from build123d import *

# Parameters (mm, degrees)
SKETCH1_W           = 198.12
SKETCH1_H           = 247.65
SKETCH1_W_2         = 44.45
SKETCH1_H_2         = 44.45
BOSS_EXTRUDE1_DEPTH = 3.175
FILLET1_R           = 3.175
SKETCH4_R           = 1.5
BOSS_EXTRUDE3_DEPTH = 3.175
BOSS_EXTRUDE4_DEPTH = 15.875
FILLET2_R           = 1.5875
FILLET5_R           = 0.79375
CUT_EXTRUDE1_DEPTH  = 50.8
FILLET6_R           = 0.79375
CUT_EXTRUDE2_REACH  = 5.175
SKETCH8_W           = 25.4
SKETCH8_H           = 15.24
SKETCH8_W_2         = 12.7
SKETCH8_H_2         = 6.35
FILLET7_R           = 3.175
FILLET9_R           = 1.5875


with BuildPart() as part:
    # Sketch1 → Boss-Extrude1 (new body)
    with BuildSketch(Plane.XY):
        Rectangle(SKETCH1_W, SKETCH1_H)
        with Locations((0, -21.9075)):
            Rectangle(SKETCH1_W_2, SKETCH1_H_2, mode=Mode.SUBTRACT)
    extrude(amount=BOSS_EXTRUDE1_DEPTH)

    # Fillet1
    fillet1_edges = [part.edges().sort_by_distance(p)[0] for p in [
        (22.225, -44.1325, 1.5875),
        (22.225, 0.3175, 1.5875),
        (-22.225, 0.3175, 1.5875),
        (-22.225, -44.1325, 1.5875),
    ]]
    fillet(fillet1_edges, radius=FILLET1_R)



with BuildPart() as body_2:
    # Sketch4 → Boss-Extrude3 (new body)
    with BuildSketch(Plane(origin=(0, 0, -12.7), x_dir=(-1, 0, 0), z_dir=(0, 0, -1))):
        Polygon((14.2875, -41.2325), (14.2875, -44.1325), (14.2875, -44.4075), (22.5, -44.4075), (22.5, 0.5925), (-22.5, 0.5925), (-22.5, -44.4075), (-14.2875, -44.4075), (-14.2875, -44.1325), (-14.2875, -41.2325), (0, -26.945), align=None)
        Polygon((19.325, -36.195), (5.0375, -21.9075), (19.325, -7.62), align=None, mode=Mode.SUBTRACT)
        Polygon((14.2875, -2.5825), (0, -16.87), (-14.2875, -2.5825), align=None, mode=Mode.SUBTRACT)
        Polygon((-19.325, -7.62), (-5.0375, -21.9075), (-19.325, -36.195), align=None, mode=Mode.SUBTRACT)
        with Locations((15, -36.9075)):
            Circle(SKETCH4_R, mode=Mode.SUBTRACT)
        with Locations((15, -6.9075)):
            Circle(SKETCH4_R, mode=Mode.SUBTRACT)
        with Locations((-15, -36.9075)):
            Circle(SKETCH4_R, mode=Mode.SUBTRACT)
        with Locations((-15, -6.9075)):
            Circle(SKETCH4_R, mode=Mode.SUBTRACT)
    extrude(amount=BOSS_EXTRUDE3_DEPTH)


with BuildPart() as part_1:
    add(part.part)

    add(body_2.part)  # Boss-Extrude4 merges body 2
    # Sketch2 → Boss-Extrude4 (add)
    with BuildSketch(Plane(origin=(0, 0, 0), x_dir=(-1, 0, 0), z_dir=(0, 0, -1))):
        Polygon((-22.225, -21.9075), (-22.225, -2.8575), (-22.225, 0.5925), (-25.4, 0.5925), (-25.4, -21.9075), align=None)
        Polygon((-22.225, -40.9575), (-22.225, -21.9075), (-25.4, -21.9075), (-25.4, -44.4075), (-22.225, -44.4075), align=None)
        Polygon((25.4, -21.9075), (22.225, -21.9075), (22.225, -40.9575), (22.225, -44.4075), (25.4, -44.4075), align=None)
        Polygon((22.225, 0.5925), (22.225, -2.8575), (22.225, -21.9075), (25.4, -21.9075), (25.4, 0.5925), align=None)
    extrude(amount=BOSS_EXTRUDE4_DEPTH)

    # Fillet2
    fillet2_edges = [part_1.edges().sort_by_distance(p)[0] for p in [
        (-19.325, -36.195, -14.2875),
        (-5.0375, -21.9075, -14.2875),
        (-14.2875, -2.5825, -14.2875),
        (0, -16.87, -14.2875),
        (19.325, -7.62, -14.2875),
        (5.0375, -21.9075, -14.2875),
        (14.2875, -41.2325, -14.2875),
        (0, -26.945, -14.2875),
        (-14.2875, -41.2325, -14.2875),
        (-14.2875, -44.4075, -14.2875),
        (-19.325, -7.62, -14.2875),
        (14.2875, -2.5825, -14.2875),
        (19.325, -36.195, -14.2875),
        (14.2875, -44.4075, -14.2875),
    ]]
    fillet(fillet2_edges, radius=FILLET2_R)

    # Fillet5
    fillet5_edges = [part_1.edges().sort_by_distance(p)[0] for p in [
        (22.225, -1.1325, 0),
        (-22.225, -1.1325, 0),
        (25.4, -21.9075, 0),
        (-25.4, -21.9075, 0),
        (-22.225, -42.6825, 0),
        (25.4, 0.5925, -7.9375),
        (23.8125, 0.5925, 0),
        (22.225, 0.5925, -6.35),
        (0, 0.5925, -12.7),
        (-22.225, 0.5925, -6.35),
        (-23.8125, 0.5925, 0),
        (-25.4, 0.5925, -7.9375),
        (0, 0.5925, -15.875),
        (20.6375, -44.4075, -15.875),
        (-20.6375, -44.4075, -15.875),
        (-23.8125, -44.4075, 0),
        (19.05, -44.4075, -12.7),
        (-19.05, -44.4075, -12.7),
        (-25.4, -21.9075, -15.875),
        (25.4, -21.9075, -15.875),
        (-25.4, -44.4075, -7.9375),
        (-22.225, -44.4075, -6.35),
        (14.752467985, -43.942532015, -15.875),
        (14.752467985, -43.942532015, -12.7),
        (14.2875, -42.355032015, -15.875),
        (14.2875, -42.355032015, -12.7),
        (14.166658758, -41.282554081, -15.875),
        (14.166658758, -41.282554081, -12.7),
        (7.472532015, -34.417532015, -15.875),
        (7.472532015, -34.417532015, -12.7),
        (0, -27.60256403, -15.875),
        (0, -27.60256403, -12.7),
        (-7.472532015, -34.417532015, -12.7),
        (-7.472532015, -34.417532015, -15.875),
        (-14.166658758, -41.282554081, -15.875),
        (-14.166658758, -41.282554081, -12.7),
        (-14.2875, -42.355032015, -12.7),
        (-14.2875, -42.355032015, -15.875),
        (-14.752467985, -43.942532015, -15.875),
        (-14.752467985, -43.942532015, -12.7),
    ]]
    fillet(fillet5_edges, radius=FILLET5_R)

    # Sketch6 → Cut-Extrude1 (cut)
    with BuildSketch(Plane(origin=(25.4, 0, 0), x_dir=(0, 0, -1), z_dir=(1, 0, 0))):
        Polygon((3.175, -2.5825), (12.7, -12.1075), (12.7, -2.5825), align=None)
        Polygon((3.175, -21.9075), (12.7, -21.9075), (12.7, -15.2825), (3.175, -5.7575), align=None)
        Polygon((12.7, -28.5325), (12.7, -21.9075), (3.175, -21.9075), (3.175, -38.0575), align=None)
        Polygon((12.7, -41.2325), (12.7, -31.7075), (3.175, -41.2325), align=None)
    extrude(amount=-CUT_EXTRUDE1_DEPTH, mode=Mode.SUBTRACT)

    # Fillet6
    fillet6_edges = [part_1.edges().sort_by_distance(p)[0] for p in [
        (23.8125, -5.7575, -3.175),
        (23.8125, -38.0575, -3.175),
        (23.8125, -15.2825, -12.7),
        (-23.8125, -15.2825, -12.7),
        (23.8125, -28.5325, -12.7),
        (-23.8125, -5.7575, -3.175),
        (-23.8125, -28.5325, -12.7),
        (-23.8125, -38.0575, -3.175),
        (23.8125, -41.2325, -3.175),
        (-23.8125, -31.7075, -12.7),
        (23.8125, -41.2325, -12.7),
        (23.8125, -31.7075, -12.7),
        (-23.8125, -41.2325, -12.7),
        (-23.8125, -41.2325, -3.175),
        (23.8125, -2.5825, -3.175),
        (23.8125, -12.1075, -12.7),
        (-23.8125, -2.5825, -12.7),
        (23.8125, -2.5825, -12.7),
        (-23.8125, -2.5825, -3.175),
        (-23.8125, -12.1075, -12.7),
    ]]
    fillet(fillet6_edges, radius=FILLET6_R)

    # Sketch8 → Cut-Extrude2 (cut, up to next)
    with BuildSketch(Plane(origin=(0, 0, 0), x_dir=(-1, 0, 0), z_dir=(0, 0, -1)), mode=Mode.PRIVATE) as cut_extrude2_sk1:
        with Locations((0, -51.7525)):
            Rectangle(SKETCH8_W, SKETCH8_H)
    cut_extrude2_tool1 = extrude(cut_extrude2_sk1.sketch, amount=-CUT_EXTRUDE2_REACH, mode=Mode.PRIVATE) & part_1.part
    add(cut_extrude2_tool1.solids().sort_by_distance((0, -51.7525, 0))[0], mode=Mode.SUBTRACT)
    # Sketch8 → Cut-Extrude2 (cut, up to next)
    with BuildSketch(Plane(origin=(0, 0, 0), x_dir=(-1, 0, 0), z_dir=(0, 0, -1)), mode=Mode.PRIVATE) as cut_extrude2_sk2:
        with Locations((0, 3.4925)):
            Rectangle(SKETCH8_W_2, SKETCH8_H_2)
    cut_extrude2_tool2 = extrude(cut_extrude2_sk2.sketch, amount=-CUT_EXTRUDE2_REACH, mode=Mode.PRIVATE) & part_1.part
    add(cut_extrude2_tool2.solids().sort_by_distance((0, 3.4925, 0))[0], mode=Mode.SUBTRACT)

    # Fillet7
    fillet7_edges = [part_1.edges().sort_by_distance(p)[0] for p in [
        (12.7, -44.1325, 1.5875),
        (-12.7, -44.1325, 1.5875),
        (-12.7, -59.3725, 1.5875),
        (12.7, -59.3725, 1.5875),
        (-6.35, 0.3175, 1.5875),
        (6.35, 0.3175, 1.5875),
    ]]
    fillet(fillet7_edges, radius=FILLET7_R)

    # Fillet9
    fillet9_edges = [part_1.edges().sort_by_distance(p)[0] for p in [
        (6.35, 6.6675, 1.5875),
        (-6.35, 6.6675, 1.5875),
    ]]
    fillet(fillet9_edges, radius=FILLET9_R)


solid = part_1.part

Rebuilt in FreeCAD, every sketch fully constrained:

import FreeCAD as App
import Part
import Sketcher

V = App.Vector
Q = App.Units.Quantity


def edges_at(feature, points):
    """Names of the edges that pass closest to the given points."""
    edges = feature.Shape.Edges
    near = lambda p: min(range(len(edges)), key=lambda i: edges[i].distToShape(Part.Vertex(*p))[0])
    return sorted({f"Edge{near(p) + 1}" for p in points})

doc = App.newDocument("Part")
params = doc.addObject("Spreadsheet::Sheet", "Params")
for row, (alias, value) in enumerate([
    ("sketch1_width", "7.8 in"),
    ("sketch1_width2", "1.75 in"),
    ("sketch1_height", "9.75 in"),
    ("pad1_length", "0.125 in"),
    ("fillet_radius", "0.125 in"),
    ("sketch2_width", "1.125 in"),
    ("sketch2_height", "0.125 in"),
    ("pad2_length", "0.125 in"),
    ("sketch3_width", "0.125 in"),
    ("pad3_length", "0.625 in"),
    ("fillet2_radius", "0.0625 in"),
    ("fillet3_radius", "0.03125 in"),
    ("sketch4_width", "0.375 in"),
    ("pocket1_length", "2 in"),
    ("fillet4_radius", "0.03125 in"),
    ("sketch5_width", "1 in"),
    ("sketch5_height", "0.6 in"),
    ("sketch6_width", "0.5 in"),
    ("sketch6_height", "0.25 in"),
    ("fillet5_radius", "0.125 in"),
    ("fillet6_radius", "0.0625 in"),
], start=1):
    params.set(f"A{row}", alias)
    params.set(f"B{row}", "=" + value)
    params.setAlias(f"B{row}", alias)

body = doc.addObject("PartDesign::Body", "Body")

# Sketch on XY plane
sketch1 = body.newObject("Sketcher::SketchObject", "Sketch")
sketch1.AttachmentSupport = (doc.getObject("XY_Plane"), [""])
sketch1.MapMode = "FlatFace"
sketch1.addGeometry([
    Part.LineSegment(V(-99.06, 123.825, 0), V(-99.06, -123.825, 0)),  # 0
    Part.LineSegment(V(-99.06, -123.825, 0), V(99.06, -123.825, 0)),  # 1
    Part.LineSegment(V(99.06, -123.825, 0), V(99.06, 123.825, 0)),  # 2
    Part.LineSegment(V(99.06, 123.825, 0), V(-99.06, 123.825, 0)),  # 3
    Part.LineSegment(V(22.225, -44.1325, 0), V(-22.225, -44.1325, 0)),  # 4
    Part.LineSegment(V(-22.225, -44.1325, 0), V(-22.225, 0.3175, 0)),  # 5
    Part.LineSegment(V(-22.225, 0.3175, 0), V(22.225, 0.3175, 0)),  # 6
    Part.LineSegment(V(22.225, 0.3175, 0), V(22.225, -44.1325, 0)),  # 7
], False)
sketch1.addConstraint([
    Sketcher.Constraint("Coincident", 0, 2, 1, 1),
    Sketcher.Constraint("Coincident", 1, 2, 2, 1),
    Sketcher.Constraint("Coincident", 2, 2, 3, 1),
    Sketcher.Constraint("Coincident", 3, 2, 0, 1),
    Sketcher.Constraint("Coincident", 4, 2, 5, 1),
    Sketcher.Constraint("Coincident", 5, 2, 6, 1),
    Sketcher.Constraint("Coincident", 6, 2, 7, 1),
    Sketcher.Constraint("Coincident", 7, 2, 4, 1),
    Sketcher.Constraint("Vertical", 0),
    Sketcher.Constraint("Horizontal", 1),
    Sketcher.Constraint("Vertical", 2),
    Sketcher.Constraint("Horizontal", 3),
    Sketcher.Constraint("Horizontal", 4),
    Sketcher.Constraint("Vertical", 5),
    Sketcher.Constraint("Horizontal", 6),
    Sketcher.Constraint("Vertical", 7),
    Sketcher.Constraint("Symmetric", 0, 2, 2, 2, -1, 1),
    Sketcher.Constraint("Equal", 6, 5),
    Sketcher.Constraint("DistanceX", 1, 1, 1, 2, Q("7.8 in")),
    Sketcher.Constraint("DistanceX", 4, 2, 4, 1, Q("1.75 in")),
    Sketcher.Constraint("DistanceY", 0, 2, 0, 1, Q("9.75 in")),
    Sketcher.Constraint("DistanceX", 4, 2, -1, 1, Q("0.875 in")),
    Sketcher.Constraint("DistanceY", 4, 2, -1, 1, Q("1.7375 in")),
])
sketch1.setExpression("Constraints[18]", "Params.sketch1_width")
sketch1.setExpression("Constraints[19]", "Params.sketch1_width2")
sketch1.setExpression("Constraints[20]", "Params.sketch1_height")
pad1 = body.newObject("PartDesign::Pad", "Pad")
pad1.Profile = sketch1
pad1.setExpression("Length", "Params.pad1_length")
doc.recompute()

fillet = body.newObject("PartDesign::Fillet", "Fillet")
fillet.Base = (pad1, edges_at(pad1, [
    (22.225, -44.133, 1.587),
    (22.225, 0.318, 1.587),
    (-22.225, 0.318, 1.587),
    (-22.225, -44.133, 1.587),
]))
fillet.setExpression("Radius", "Params.fillet_radius")
body2 = doc.addObject("PartDesign::Body", "Body001")

# Sketch on XY plane
sketch2 = body2.newObject("Sketcher::SketchObject", "Sketch001")
sketch2.AttachmentSupport = (doc.getObject("XY_Plane001"), [""])
sketch2.MapMode = "FlatFace"
sketch2.AttachmentOffset = App.Placement(V(0, 0, -0.5 * 25.4), App.Rotation())
sketch2.addGeometry([
    Part.LineSegment(V(-14.2875, -41.2325, 0), V(-14.2875, -44.4075, 0)),  # 0
    Part.LineSegment(V(-14.2875, -44.4075, 0), V(-22.5, -44.4075, 0)),  # 1
    Part.LineSegment(V(-22.5, -44.4075, 0), V(-22.5, 0.5925, 0)),  # 2
    Part.LineSegment(V(-22.5, 0.5925, 0), V(22.5, 0.5925, 0)),  # 3
    Part.LineSegment(V(22.5, 0.5925, 0), V(22.5, -44.4075, 0)),  # 4
    Part.LineSegment(V(22.5, -44.4075, 0), V(14.2875, -44.4075, 0)),  # 5
    Part.LineSegment(V(14.2875, -44.4075, 0), V(14.2875, -41.2325, 0)),  # 6
    Part.LineSegment(V(14.2875, -41.2325, 0), V(0, -26.945, 0)),  # 7
    Part.LineSegment(V(0, -26.945, 0), V(-14.2875, -41.2325, 0)),  # 8
    Part.Circle(V(15, -36.9075, 0), V(0, 0, 1), 1.5),  # 9
    Part.LineSegment(V(19.325, -36.195, 0), V(19.325, -7.62, 0)),  # 10
    Part.LineSegment(V(19.325, -7.62, 0), V(5.0375, -21.9075, 0)),  # 11
    Part.LineSegment(V(5.0375, -21.9075, 0), V(19.325, -36.195, 0)),  # 12
    Part.Circle(V(-15, -36.9075, 0), V(0, 0, 1), 1.5),  # 13
    Part.LineSegment(V(-19.325, -7.62, 0), V(-19.325, -36.195, 0)),  # 14
    Part.LineSegment(V(-19.325, -36.195, 0), V(-5.0375, -21.9075, 0)),  # 15
    Part.LineSegment(V(-5.0375, -21.9075, 0), V(-19.325, -7.62, 0)),  # 16
    Part.Circle(V(15, -6.9075, 0), V(0, 0, 1), 1.5),  # 17
    Part.LineSegment(V(14.2875, -2.5825, 0), V(-14.2875, -2.5825, 0)),  # 18
    Part.LineSegment(V(-14.2875, -2.5825, 0), V(0, -16.87, 0)),  # 19
    Part.LineSegment(V(0, -16.87, 0), V(14.2875, -2.5825, 0)),  # 20
    Part.Circle(V(-15, -6.9075, 0), V(0, 0, 1), 1.5),  # 21
], False)
sketch2.addConstraint([
    Sketcher.Constraint("Coincident", 0, 2, 1, 1),
    Sketcher.Constraint("Coincident", 1, 2, 2, 1),
    Sketcher.Constraint("Coincident", 2, 2, 3, 1),
    Sketcher.Constraint("Coincident", 3, 2, 4, 1),
    Sketcher.Constraint("Coincident", 4, 2, 5, 1),
    Sketcher.Constraint("Coincident", 5, 2, 6, 1),
    Sketcher.Constraint("Coincident", 6, 2, 7, 1),
    Sketcher.Constraint("Coincident", 7, 2, 8, 1),
    Sketcher.Constraint("Coincident", 8, 2, 0, 1),
    Sketcher.Constraint("Coincident", 10, 2, 11, 1),
    Sketcher.Constraint("Coincident", 11, 2, 12, 1),
    Sketcher.Constraint("Coincident", 12, 2, 10, 1),
    Sketcher.Constraint("Coincident", 14, 2, 15, 1),
    Sketcher.Constraint("Coincident", 15, 2, 16, 1),
    Sketcher.Constraint("Coincident", 16, 2, 14, 1),
    Sketcher.Constraint("Coincident", 18, 2, 19, 1),
    Sketcher.Constraint("Coincident", 19, 2, 20, 1),
    Sketcher.Constraint("Coincident", 20, 2, 18, 1),
    Sketcher.Constraint("Vertical", 0),
    Sketcher.Constraint("Horizontal", 1),
    Sketcher.Constraint("Vertical", 2),
    Sketcher.Constraint("Horizontal", 3),
    Sketcher.Constraint("Vertical", 4),
    Sketcher.Constraint("Horizontal", 5),
    Sketcher.Constraint("Vertical", 6),
    Sketcher.Constraint("Vertical", 10),
    Sketcher.Constraint("Vertical", 14),
    Sketcher.Constraint("Horizontal", 18),
    Sketcher.Constraint("Equal", 9, 13),
    Sketcher.Constraint("Equal", 13, 17),
    Sketcher.Constraint("Equal", 17, 21),
    Sketcher.Constraint("Symmetric", 9, 3, 13, 3, -2),
    Sketcher.Constraint("Symmetric", 17, 3, 21, 3, -2),
    Sketcher.Constraint("Symmetric", 1, 2, 4, 2, -2),
    Sketcher.Constraint("Symmetric", 6, 2, 8, 2, -2),
    Sketcher.Constraint("Symmetric", 12, 2, 14, 2, -2),
    Sketcher.Constraint("Symmetric", 11, 2, 15, 2, -2),
    Sketcher.Constraint("PointOnObject", 7, 2, -2),
    Sketcher.Constraint("PointOnObject", 19, 2, -2),
    Sketcher.Constraint("Perpendicular", 7, 8),
    Sketcher.Constraint("Parallel", 8, 11),
    Sketcher.Constraint("Perpendicular", 11, 12),
    Sketcher.Constraint("Perpendicular", 15, 16),
    Sketcher.Constraint("Parallel", 16, 19),
    Sketcher.Constraint("Perpendicular", 19, 20),
    Sketcher.Constraint("Vertical", 9, 3, 17, 3),
    Sketcher.Constraint("Vertical", 8, 2, 18, 2),
    Sketcher.Constraint("Equal", 3, 2),
    Sketcher.Constraint("Equal", 18, 10),
    Sketcher.Constraint("DistanceY", 10, 2, -1, 1, Q("0.3 in")),
    Sketcher.Constraint("Diameter", 9, Q("3 mm")),
    Sketcher.Constraint("DistanceX", 18, 2, 18, 1, Q("1.125 in")),
    Sketcher.Constraint("DistanceY", 0, 2, 0, 1, Q("0.125 in")),
    Sketcher.Constraint("DistanceX", 10, 2, 3, 2, Q("0.125 in")),
    Sketcher.Constraint("DistanceY", 18, 2, 2, 2, Q("0.125 in")),
    Sketcher.Constraint("DistanceX", 1, 2, 1, 1, Q("8.2125 mm")),
    Sketcher.Constraint("DistanceX", -1, 1, 9, 3, Q("15 mm")),
    Sketcher.Constraint("DistanceY", 9, 3, -1, 1, Q("36.9075 mm")),
    Sketcher.Constraint("DistanceY", 17, 3, -1, 1, Q("6.9075 mm")),
    Sketcher.Constraint("DistanceY", 0, 2, -1, 1, Q("44.4075 mm")),
])
sketch2.setExpression("Constraints[51]", "Params.sketch2_width")
sketch2.setExpression("Constraints[52]", "Params.sketch2_height")
pad2 = body2.newObject("PartDesign::Pad", "Pad001")
pad2.Profile = sketch2
pad2.setExpression("Length", "Params.pad2_length")
pad2.Reversed = True
body.AllowCompound = True
doc.recompute()

boolean = body.newObject("PartDesign::Boolean", "Boolean")
boolean.Type = "Fuse"
boolean.addObjects([body2])

# Sketch on XY plane
sketch3 = body.newObject("Sketcher::SketchObject", "Sketch002")
sketch3.AttachmentSupport = (doc.getObject("XY_Plane"), [""])
sketch3.MapMode = "FlatFace"
sketch3.addGeometry([
    Part.LineSegment(V(22.225, 0.5925, 0), V(25.4, 0.5925, 0)),  # 0
    Part.LineSegment(V(25.4, 0.5925, 0), V(25.4, -44.4075, 0)),  # 1
    Part.LineSegment(V(25.4, -44.4075, 0), V(22.225, -44.4075, 0)),  # 2
    Part.LineSegment(V(22.225, -44.4075, 0), V(22.225, 0.5925, 0)),  # 3
    Part.LineSegment(V(-22.225, -44.4075, 0), V(-25.4, -44.4075, 0)),  # 4
    Part.LineSegment(V(-25.4, -44.4075, 0), V(-25.4, 0.5925, 0)),  # 5
    Part.LineSegment(V(-25.4, 0.5925, 0), V(-22.225, 0.5925, 0)),  # 6
    Part.LineSegment(V(-22.225, 0.5925, 0), V(-22.225, -44.4075, 0)),  # 7
], False)
sketch3.addConstraint([
    Sketcher.Constraint("Coincident", 0, 2, 1, 1),
    Sketcher.Constraint("Coincident", 1, 2, 2, 1),
    Sketcher.Constraint("Coincident", 2, 2, 3, 1),
    Sketcher.Constraint("Coincident", 3, 2, 0, 1),
    Sketcher.Constraint("Coincident", 4, 2, 5, 1),
    Sketcher.Constraint("Coincident", 5, 2, 6, 1),
    Sketcher.Constraint("Coincident", 6, 2, 7, 1),
    Sketcher.Constraint("Coincident", 7, 2, 4, 1),
    Sketcher.Constraint("Horizontal", 0),
    Sketcher.Constraint("Vertical", 1),
    Sketcher.Constraint("Horizontal", 2),
    Sketcher.Constraint("Vertical", 3),
    Sketcher.Constraint("Horizontal", 4),
    Sketcher.Constraint("Vertical", 5),
    Sketcher.Constraint("Horizontal", 6),
    Sketcher.Constraint("Vertical", 7),
    Sketcher.Constraint("Symmetric", 1, 2, 4, 2, -2),
    Sketcher.Constraint("Symmetric", 3, 2, 6, 2, -2),
    Sketcher.Constraint("DistanceX", -1, 1, 0, 2, Q("1 in")),
    Sketcher.Constraint("DistanceX", 0, 1, 0, 2, Q("0.125 in")),
    Sketcher.Constraint("DistanceY", 1, 2, 1, 1, Q("45 mm")),
    Sketcher.Constraint("DistanceY", -1, 1, 0, 2, Q("0.5925 mm")),
])
sketch3.setExpression("Constraints[19]", "Params.sketch3_width")
pad3 = body.newObject("PartDesign::Pad", "Pad002")
pad3.Profile = sketch3
pad3.setExpression("Length", "Params.pad3_length")
pad3.Reversed = True
doc.recompute()

fillet2 = body.newObject("PartDesign::Fillet", "Fillet001")
fillet2.Base = (pad3, edges_at(pad3, [
    (-19.325, -36.195, -14.287),
    (-5.037, -21.907, -14.287),
    (-14.287, -2.583, -14.287),
    (0, -16.87, -14.287),
    (19.325, -7.62, -14.287),
    (5.037, -21.907, -14.287),
    (14.287, -41.233, -14.287),
    (0, -26.945, -14.287),
    (-14.287, -41.233, -14.287),
    (-14.287, -44.407, -14.287),
    (-19.325, -7.62, -14.287),
    (14.287, -2.583, -14.287),
    (19.325, -36.195, -14.287),
    (14.287, -44.407, -14.287),
]))
fillet2.setExpression("Radius", "Params.fillet2_radius")
doc.recompute()

fillet3 = body.newObject("PartDesign::Fillet", "Fillet002")
fillet3.Base = (fillet2, edges_at(fillet2, [
    (22.225, -1.133, 0),
    (-22.225, -1.133, 0),
    (25.4, -21.907, 0),
    (-25.4, -21.907, 0),
    (-22.225, -42.682, 0),
    (25.4, 0.593, -7.938),
    (23.812, 0.593, 0),
    (22.225, 0.593, -6.35),
    (0, 0.593, -12.7),
    (-22.225, 0.593, -6.35),
    (-23.812, 0.593, 0),
    (-25.4, 0.593, -7.938),
    (0, 0.593, -15.875),
    (20.637, -44.407, -15.875),
    (-20.637, -44.407, -15.875),
    (-23.812, -44.407, 0),
    (19.05, -44.407, -12.7),
    (-19.05, -44.407, -12.7),
    (-25.4, -21.907, -15.875),
    (25.4, -21.907, -15.875),
    (-25.4, -44.407, -7.938),
    (-22.225, -44.407, -6.35),
    (14.752, -43.943, -15.875),
    (14.752, -43.943, -12.7),
    (14.287, -42.355, -15.875),
    (14.287, -42.355, -12.7),
    (14.167, -41.283, -15.875),
    (14.167, -41.283, -12.7),
    (7.473, -34.418, -15.875),
    (7.473, -34.418, -12.7),
    (0, -27.603, -15.875),
    (0, -27.603, -12.7),
    (-7.473, -34.418, -12.7),
    (-7.473, -34.418, -15.875),
    (-14.167, -41.283, -15.875),
    (-14.167, -41.283, -12.7),
    (-14.287, -42.355, -12.7),
    (-14.287, -42.355, -15.875),
    (-14.752, -43.943, -15.875),
    (-14.752, -43.943, -12.7),
]))
fillet3.setExpression("Radius", "Params.fillet3_radius")

# Sketch on YZ plane
sketch4 = body.newObject("Sketcher::SketchObject", "Sketch003")
sketch4.AttachmentSupport = (doc.getObject("YZ_Plane"), [""])
sketch4.MapMode = "FlatFace"
sketch4.AttachmentOffset = App.Placement(V(0, 0, 1 * 25.4), App.Rotation())
sketch4.addGeometry([
    Part.LineSegment(V(-2.5825, -3.175, 0), V(-12.1075, -12.7, 0)),  # 0
    Part.LineSegment(V(-12.1075, -12.7, 0), V(-2.5825, -12.7, 0)),  # 1
    Part.LineSegment(V(-2.5825, -12.7, 0), V(-2.5825, -3.175, 0)),  # 2
    Part.LineSegment(V(-15.2825, -12.7, 0), V(-5.7575, -3.175, 0)),  # 3
    Part.LineSegment(V(-5.7575, -3.175, 0), V(-38.0575, -3.175, 0)),  # 4
    Part.LineSegment(V(-38.0575, -3.175, 0), V(-28.5325, -12.7, 0)),  # 5
    Part.LineSegment(V(-28.5325, -12.7, 0), V(-15.2825, -12.7, 0)),  # 6
    Part.LineSegment(V(-41.2325, -12.7, 0), V(-31.7075, -12.7, 0)),  # 7
    Part.LineSegment(V(-31.7075, -12.7, 0), V(-41.2325, -3.175, 0)),  # 8
    Part.LineSegment(V(-41.2325, -3.175, 0), V(-41.2325, -12.7, 0)),  # 9
], False)
sketch4.addConstraint([
    Sketcher.Constraint("Coincident", 0, 2, 1, 1),
    Sketcher.Constraint("Coincident", 1, 2, 2, 1),
    Sketcher.Constraint("Coincident", 2, 2, 0, 1),
    Sketcher.Constraint("Coincident", 3, 2, 4, 1),
    Sketcher.Constraint("Coincident", 4, 2, 5, 1),
    Sketcher.Constraint("Coincident", 5, 2, 6, 1),
    Sketcher.Constraint("Coincident", 6, 2, 3, 1),
    Sketcher.Constraint("Coincident", 7, 2, 8, 1),
    Sketcher.Constraint("Coincident", 8, 2, 9, 1),
    Sketcher.Constraint("Coincident", 9, 2, 7, 1),
    Sketcher.Constraint("Horizontal", 1),
    Sketcher.Constraint("Vertical", 2),
    Sketcher.Constraint("Horizontal", 4),
    Sketcher.Constraint("Horizontal", 6),
    Sketcher.Constraint("Horizontal", 7),
    Sketcher.Constraint("Vertical", 9),
    Sketcher.Constraint("Parallel", 0, 3),
    Sketcher.Constraint("Perpendicular", 3, 5),
    Sketcher.Constraint("Parallel", 5, 8),
    Sketcher.Constraint("Horizontal", 2, 2, 3, 2),
    Sketcher.Constraint("Horizontal", 1, 2, 5, 2),
    Sketcher.Constraint("Horizontal", 6, 2, 7, 2),
    Sketcher.Constraint("Horizontal", 4, 2, 8, 2),
    Sketcher.Constraint("Equal", 1, 7),
    Sketcher.Constraint("DistanceY", 0, 2, -1, 1, Q("0.5 in")),
    Sketcher.Constraint("DistanceX", 6, 2, 1, 2, Q("0.5 in")),
    Sketcher.Constraint("DistanceX", 8, 2, 5, 2, Q("0.5 in")),
    Sketcher.Constraint("DistanceX", 1, 1, 1, 2, Q("0.375 in")),
    Sketcher.Constraint("DistanceX", 4, 2, 4, 1, Q("32.3 mm")),
    Sketcher.Constraint("DistanceX", 0, 2, -1, 1, Q("12.1075 mm")),
])
sketch4.setExpression("Constraints[27]", "Params.sketch4_width")
pocket1 = body.newObject("PartDesign::Pocket", "Pocket")
pocket1.Profile = sketch4
pocket1.setExpression("Length", "Params.pocket1_length")
doc.recompute()

fillet4 = body.newObject("PartDesign::Fillet", "Fillet003")
fillet4.Base = (pocket1, edges_at(pocket1, [
    (23.812, -5.758, -3.175),
    (23.812, -38.057, -3.175),
    (23.812, -15.283, -12.7),
    (-23.812, -15.283, -12.7),
    (23.812, -28.532, -12.7),
    (-23.812, -5.758, -3.175),
    (-23.812, -28.532, -12.7),
    (-23.812, -38.057, -3.175),
    (23.812, -41.233, -3.175),
    (-23.812, -31.707, -12.7),
    (23.812, -41.233, -12.7),
    (23.812, -31.707, -12.7),
    (-23.812, -41.233, -12.7),
    (-23.812, -41.233, -3.175),
    (23.812, -2.583, -3.175),
    (23.812, -12.107, -12.7),
    (-23.812, -2.583, -12.7),
    (23.812, -2.583, -12.7),
    (-23.812, -2.583, -3.175),
    (-23.812, -12.107, -12.7),
]))
fillet4.setExpression("Radius", "Params.fillet4_radius")

# Sketch on XY plane
sketch5 = body.newObject("Sketcher::SketchObject", "Sketch004")
sketch5.AttachmentSupport = (doc.getObject("XY_Plane"), [""])
sketch5.MapMode = "FlatFace"
sketch5.addGeometry([
    Part.LineSegment(V(12.7, -44.1325, 0), V(12.7, -59.3725, 0)),
    Part.LineSegment(V(12.7, -59.3725, 0), V(-12.7, -59.3725, 0)),
    Part.LineSegment(V(-12.7, -59.3725, 0), V(-12.7, -44.1325, 0)),
    Part.LineSegment(V(-12.7, -44.1325, 0), V(12.7, -44.1325, 0)),
], False)
sketch5.addConstraint([
    Sketcher.Constraint("Coincident", 0, 2, 1, 1),
    Sketcher.Constraint("Coincident", 1, 2, 2, 1),
    Sketcher.Constraint("Coincident", 2, 2, 3, 1),
    Sketcher.Constraint("Coincident", 3, 2, 0, 1),
    Sketcher.Constraint("Vertical", 0),
    Sketcher.Constraint("Horizontal", 1),
    Sketcher.Constraint("Vertical", 2),
    Sketcher.Constraint("Horizontal", 3),
    Sketcher.Constraint("DistanceX", 1, 2, 1, 1, Q("1 in")),
    Sketcher.Constraint("DistanceY", 0, 2, 0, 1, Q("0.6 in")),
    Sketcher.Constraint("DistanceX", -1, 1, 0, 2, Q("0.5 in")),
    Sketcher.Constraint("DistanceY", 0, 2, -1, 1, Q("2.3375 in")),
])
sketch5.setExpression("Constraints[8]", "Params.sketch5_width")
sketch5.setExpression("Constraints[9]", "Params.sketch5_height")
pocket2 = body.newObject("PartDesign::Pocket", "Pocket001")
pocket2.Profile = sketch5
pocket2.Type = "UpToFirst"
pocket2.Reversed = True

# Sketch on XY plane
sketch6 = body.newObject("Sketcher::SketchObject", "Sketch005")
sketch6.AttachmentSupport = (doc.getObject("XY_Plane"), [""])
sketch6.MapMode = "FlatFace"
sketch6.addGeometry([
    Part.LineSegment(V(6.35, 6.6675, 0), V(6.35, 0.3175, 0)),
    Part.LineSegment(V(6.35, 0.3175, 0), V(-6.35, 0.3175, 0)),
    Part.LineSegment(V(-6.35, 0.3175, 0), V(-6.35, 6.6675, 0)),
    Part.LineSegment(V(-6.35, 6.6675, 0), V(6.35, 6.6675, 0)),
], False)
sketch6.addConstraint([
    Sketcher.Constraint("Coincident", 0, 2, 1, 1),
    Sketcher.Constraint("Coincident", 1, 2, 2, 1),
    Sketcher.Constraint("Coincident", 2, 2, 3, 1),
    Sketcher.Constraint("Coincident", 3, 2, 0, 1),
    Sketcher.Constraint("Vertical", 0),
    Sketcher.Constraint("Horizontal", 1),
    Sketcher.Constraint("Vertical", 2),
    Sketcher.Constraint("Horizontal", 3),
    Sketcher.Constraint("DistanceX", 1, 2, 1, 1, Q("0.5 in")),
    Sketcher.Constraint("DistanceY", 0, 2, 0, 1, Q("0.25 in")),
    Sketcher.Constraint("DistanceX", -1, 1, 0, 2, Q("0.25 in")),
    Sketcher.Constraint("DistanceY", -1, 1, 0, 2, Q("0.0125 in")),
])
sketch6.setExpression("Constraints[8]", "Params.sketch6_width")
sketch6.setExpression("Constraints[9]", "Params.sketch6_height")
pocket3 = body.newObject("PartDesign::Pocket", "Pocket002")
pocket3.Profile = sketch6
pocket3.Type = "UpToFirst"
pocket3.Reversed = True
doc.recompute()

fillet5 = body.newObject("PartDesign::Fillet", "Fillet004")
fillet5.Base = (pocket3, edges_at(pocket3, [
    (12.7, -44.133, 1.587),
    (-12.7, -44.133, 1.587),
    (-12.7, -59.373, 1.587),
    (12.7, -59.373, 1.587),
    (-6.35, 0.318, 1.587),
    (6.35, 0.318, 1.587),
]))
fillet5.setExpression("Radius", "Params.fillet5_radius")
doc.recompute()

fillet6 = body.newObject("PartDesign::Fillet", "Fillet005")
fillet6.Base = (fillet5, edges_at(fillet5, [(6.35, 6.668, 1.587), (-6.35, 6.668, 1.587)]))
fillet6.setExpression("Radius", "Params.fillet6_radius")

doc.recompute()
